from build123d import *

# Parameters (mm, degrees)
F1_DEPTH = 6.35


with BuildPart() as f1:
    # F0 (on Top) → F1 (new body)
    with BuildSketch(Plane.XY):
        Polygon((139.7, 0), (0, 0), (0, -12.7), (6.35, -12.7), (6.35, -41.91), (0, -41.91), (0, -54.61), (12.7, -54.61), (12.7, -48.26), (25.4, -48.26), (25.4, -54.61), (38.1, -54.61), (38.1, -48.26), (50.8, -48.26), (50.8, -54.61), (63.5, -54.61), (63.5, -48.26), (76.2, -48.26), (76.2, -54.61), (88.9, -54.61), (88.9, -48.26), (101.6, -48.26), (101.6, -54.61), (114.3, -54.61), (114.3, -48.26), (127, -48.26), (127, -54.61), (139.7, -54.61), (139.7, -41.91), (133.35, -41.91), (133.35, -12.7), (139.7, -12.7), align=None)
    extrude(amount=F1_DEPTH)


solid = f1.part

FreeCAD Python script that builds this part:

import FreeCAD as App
import Part
import Sketcher

V = App.Vector
Q = App.Units.Quantity

doc = App.newDocument("Part")
body = doc.addObject("PartDesign::Body", "Body")

# Sketch on XY plane
sketch1 = body.newObject("Sketcher::SketchObject", "Sketch")
sketch1.AttachmentSupport = (doc.getObject("XY_Plane"), [""])
sketch1.MapMode = "FlatFace"
sketch1.addGeometry(Part.LineSegment(V(140, 0, 0), V(0, 0, 0)), False)
sketch1.addGeometry(Part.LineSegment(V(0, 0, 0), V(0, -13, 0)), False)
sketch1.addGeometry(Part.LineSegment(V(0, -13, 0), V(6, -13, 0)), False)
sketch1.addGeometry(Part.LineSegment(V(6, -13, 0), V(6, -42, 0)), False)
sketch1.addGeometry(Part.LineSegment(V(6, -42, 0), V(0, -42, 0)), False)
sketch1.addGeometry(Part.LineSegment(V(0, -42, 0), V(0, -55, 0)), False)
sketch1.addGeometry(Part.LineSegment(V(0, -55, 0), V(13, -55, 0)), False)
sketch1.addGeometry(Part.LineSegment(V(13, -55, 0), V(13, -48, 0)), False)
sketch1.addGeometry(Part.LineSegment(V(13, -48, 0), V(25, -48, 0)), False)
sketch1.addGeometry(Part.LineSegment(V(25, -48, 0), V(25, -55, 0)), False)
sketch1.addGeometry(Part.LineSegment(V(25, -55, 0), V(38, -55, 0)), False)
sketch1.addGeometry(Part.LineSegment(V(38, -55, 0), V(38, -48, 0)), False)
sketch1.addGeometry(Part.LineSegment(V(38, -48, 0), V(51, -48, 0)), False)
sketch1.addGeometry(Part.LineSegment(V(51, -48, 0), V(51, -55, 0)), False)
sketch1.addGeometry(Part.LineSegment(V(51, -55, 0), V(64, -55, 0)), False)
sketch1.addGeometry(Part.LineSegment(V(64, -55, 0), V(64, -48, 0)), False)
sketch1.addGeometry(Part.LineSegment(V(64, -48, 0), V(76, -48, 0)), False)
sketch1.addGeometry(Part.LineSegment(V(76, -48, 0), V(76, -55, 0)), False)
sketch1.addGeometry(Part.LineSegment(V(76, -55, 0), V(89, -55, 0)), False)
sketch1.addGeometry(Part.LineSegment(V(89, -55, 0), V(89, -48, 0)), False)
sketch1.addGeometry(Part.LineSegment(V(89, -48, 0), V(102, -48, 0)), False)
sketch1.addGeometry(Part.LineSegment(V(102, -48, 0), V(102, -55, 0)), False)
sketch1.addGeometry(Part.LineSegment(V(102, -55, 0), V(114, -55, 0)), False)
sketch1.addGeometry(Part.LineSegment(V(114, -55, 0), V(114, -48, 0)), False)
sketch1.addGeometry(Part.LineSegment(V(114, -48, 0), V(127, -48, 0)), False)
sketch1.addGeometry(Part.LineSegment(V(127, -48, 0), V(127, -55, 0)), False)
sketch1.addGeometry(Part.LineSegment(V(127, -55, 0), V(140, -55, 0)), False)
sketch1.addGeometry(Part.LineSegment(V(140, -55, 0), V(140, -42, 0)), False)
sketch1.addGeometry(Part.LineSegment(V(140, -42, 0), V(133, -42, 0)), False)
sketch1.addGeometry(Part.LineSegment(V(133, -42, 0), V(133, -13, 0)), False)
sketch1.addGeometry(Part.LineSegment(V(133, -13, 0), V(140, -13, 0)), False)
sketch1.addGeometry(Part.LineSegment(V(140, -13, 0), V(140, 0, 0)), False)
sketch1.addConstraint(Sketcher.Constraint("Coincident", 0, 2, 1, 1))
sketch1.addConstraint(Sketcher.Constraint("Coincident", 1, 2, 2, 1))
sketch1.addConstraint(Sketcher.Constraint("Coincident", 2, 2, 3, 1))
sketch1.addConstraint(Sketcher.Constraint("Coincident", 3, 2, 4, 1))
sketch1.addConstraint(Sketcher.Constraint("Coincident", 4, 2, 5, 1))
sketch1.addConstraint(Sketcher.Constraint("Coincident", 5, 2, 6, 1))
sketch1.addConstraint(Sketcher.Constraint("Coincident", 6, 2, 7, 1))
sketch1.addConstraint(Sketcher.Constraint("Coincident", 7, 2, 8, 1))
sketch1.addConstraint(Sketcher.Constraint("Coincident", 8, 2, 9, 1))
sketch1.addConstraint(Sketcher.Constraint("Coincident", 9, 2, 10, 1))
sketch1.addConstraint(Sketcher.Constraint("Coincident", 10, 2, 11, 1))
sketch1.addConstraint(Sketcher.Constraint("Coincident", 11, 2, 12, 1))
sketch1.addConstraint(Sketcher.Constraint("Coincident", 12, 2, 13, 1))
sketch1.addConstraint(Sketcher.Constraint("Coincident", 13, 2, 14, 1))
sketch1.addConstraint(Sketcher.Constraint("Coincident", 14, 2, 15, 1))
sketch1.addConstraint(Sketcher.Constraint("Coincident", 15, 2, 16, 1))
sketch1.addConstraint(Sketcher.Constraint("Coincident", 16, 2, 17, 1))
sketch1.addConstraint(Sketcher.Constraint("Coincident", 17, 2, 18, 1))
sketch1.addConstraint(Sketcher.Constraint("Coincident", 18, 2, 19, 1))
sketch1.addConstraint(Sketcher.Constraint("Coincident", 19, 2, 20, 1))
sketch1.addConstraint(Sketcher.Constraint("Coincident", 20, 2, 21, 1))
sketch1.addConstraint(Sketcher.Constraint("Coincident", 21, 2, 22, 1))
sketch1.addConstraint(Sketcher.Constraint("Coincident", 22, 2, 23, 1))
sketch1.addConstraint(Sketcher.Constraint("Coincident", 23, 2, 24, 1))
sketch1.addConstraint(Sketcher.Constraint("Coincident", 24, 2, 25, 1))
sketch1.addConstraint(Sketcher.Constraint("Coincident", 25, 2, 26, 1))
sketch1.addConstraint(Sketcher.Constraint("Coincident", 26, 2, 27, 1))
sketch1.addConstraint(Sketcher.Constraint("Coincident", 27, 2, 28, 1))
sketch1.addConstraint(Sketcher.Constraint("Coincident", 28, 2, 29, 1))
sketch1.addConstraint(Sketcher.Constraint("Coincident", 29, 2, 30, 1))
sketch1.addConstraint(Sketcher.Constraint("Coincident", 30, 2, 31, 1))
sketch1.addConstraint(Sketcher.Constraint("Coincident", 31, 2, 0, 1))
sketch1.addConstraint(Sketcher.Constraint("Horizontal", 0))
sketch1.addConstraint(Sketcher.Constraint("Vertical", 1))
sketch1.addConstraint(Sketcher.Constraint("Horizontal", 2))
sketch1.addConstraint(Sketcher.Constraint("Vertical", 3))
sketch1.addConstraint(Sketcher.Constraint("Horizontal", 4))
sketch1.addConstraint(Sketcher.Constraint("Vertical", 5))
sketch1.addConstraint(Sketcher.Constraint("Horizontal", 6))
sketch1.addConstraint(Sketcher.Constraint("Vertical", 7))
sketch1.addConstraint(Sketcher.Constraint("Horizontal", 8))
sketch1.addConstraint(Sketcher.Constraint("Vertical", 9))
sketch1.addConstraint(Sketcher.Constraint("Horizontal", 10))
sketch1.addConstraint(Sketcher.Constraint("Vertical", 11))
sketch1.addConstraint(Sketcher.Constraint("Horizontal", 12))
sketch1.addConstraint(Sketcher.Constraint("Vertical", 13))
sketch1.addConstraint(Sketcher.Constraint("Horizontal", 14))
sketch1.addConstraint(Sketcher.Constraint("Vertical", 15))
sketch1.addConstraint(Sketcher.Constraint("Horizontal", 16))
sketch1.addConstraint(Sketcher.Constraint("Vertical", 17))
sketch1.addConstraint(Sketcher.Constraint("Horizontal", 18))
sketch1.addConstraint(Sketcher.Constraint("Vertical", 19))
sketch1.addConstraint(Sketcher.Constraint("Horizontal", 20))
sketch1.addConstraint(Sketcher.Constraint("Vertical", 21))
sketch1.addConstraint(Sketcher.Constraint("Horizontal", 22))
sketch1.addConstraint(Sketcher.Constraint("Vertical", 23))
sketch1.addConstraint(Sketcher.Constraint("Horizontal", 24))
sketch1.addConstraint(Sketcher.Constraint("Vertical", 25))
sketch1.addConstraint(Sketcher.Constraint("Horizontal", 26))
sketch1.addConstraint(Sketcher.Constraint("Vertical", 27))
sketch1.addConstraint(Sketcher.Constraint("Horizontal", 28))
sketch1.addConstraint(Sketcher.Constraint("Vertical", 29))
sketch1.addConstraint(Sketcher.Constraint("Horizontal", 30))
sketch1.addConstraint(Sketcher.Constraint("Vertical", 31))
sketch1.addConstraint(Sketcher.Constraint("Coincident", 0, 2, -1, 1))
sketch1.addConstraint(Sketcher.Constraint("PointOnObject", 4, 2, -2))
sketch1.addConstraint(Sketcher.Constraint("Horizontal", 6, 2, 9, 2))
sketch1.addConstraint(Sketcher.Constraint("Horizontal", 8, 2, 11, 2))
sketch1.addConstraint(Sketcher.Constraint("Horizontal", 10, 2, 13, 2))
sketch1.addConstraint(Sketcher.Constraint("Horizontal", 12, 2, 15, 2))
sketch1.addConstraint(Sketcher.Constraint("Horizontal", 14, 2, 17, 2))
sketch1.addConstraint(Sketcher.Constraint("Horizontal", 16, 2, 19, 2))
sketch1.addConstraint(Sketcher.Constraint("Horizontal", 18, 2, 21, 2))
sketch1.addConstraint(Sketcher.Constraint("Horizontal", 20, 2, 23, 2))
sketch1.addConstraint(Sketcher.Constraint("Horizontal", 22, 2, 25, 2))
sketch1.addConstraint(Sketcher.Constraint("Horizontal", 4, 2, 27, 2))
sketch1.addConstraint(Sketcher.Constraint("Horizontal", 2, 2, 29, 2))
sketch1.addConstraint(Sketcher.Constraint("Vertical", 27, 2, 30, 2))
sketch1.addConstraint(Sketcher.Constraint("Equal", 6, 8))
sketch1.addConstraint(Sketcher.Constraint("Equal", 8, 10))
sketch1.addConstraint(Sketcher.Constraint("Equal", 10, 12))
sketch1.addConstraint(Sketcher.Constraint("Equal", 12, 14))
sketch1.addConstraint(Sketcher.Constraint("Equal", 14, 16))
sketch1.addConstraint(Sketcher.Constraint("Equal", 16, 18))
sketch1.addConstraint(Sketcher.Constraint("Equal", 18, 20))
sketch1.addConstraint(Sketcher.Constraint("Equal", 20, 22))
sketch1.addConstraint(Sketcher.Constraint("Equal", 22, 24))
sketch1.addConstraint(Sketcher.Constraint("Equal", 24, 26))
sketch1.addConstraint(Sketcher.Constraint("Equal", 4, 28))
sketch1.addConstraint(Sketcher.Constraint("Equal", 26, 1))
sketch1.addConstraint(Sketcher.Constraint("Equal", 1, 5))
sketch1.addConstraint(Sketcher.Constraint("Equal", 30, 7))
sketch1.addConstraint(Sketcher.Constraint("DistanceX", 0, 2, 0, 1, Q("5.5 in")))
sketch1.addConstraint(Sketcher.Constraint("DistanceX", 2, 1, 2, 2, Q("0.25 in")))
sketch1.addConstraint(Sketcher.Constraint("DistanceY", 3, 2, 3, 1, Q("1.15 in")))
pad1 = body.newObject("PartDesign::Pad", "Pad")
pad1.Profile = sketch1
pad1.Length = Q("0.25 in")

doc.recompute()
